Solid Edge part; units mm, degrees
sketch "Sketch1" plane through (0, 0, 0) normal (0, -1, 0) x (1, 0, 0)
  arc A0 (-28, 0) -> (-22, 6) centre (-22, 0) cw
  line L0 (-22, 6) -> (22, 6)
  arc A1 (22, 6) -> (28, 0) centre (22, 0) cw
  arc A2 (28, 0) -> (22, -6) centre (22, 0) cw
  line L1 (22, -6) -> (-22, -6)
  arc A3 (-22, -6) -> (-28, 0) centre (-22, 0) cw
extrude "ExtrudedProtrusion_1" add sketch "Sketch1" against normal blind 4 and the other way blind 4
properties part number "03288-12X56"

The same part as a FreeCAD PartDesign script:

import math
import FreeCAD as App
import Part
import Sketcher

doc = App.newDocument("Part")
body = doc.addObject("PartDesign::Body", "Body")

sketch1 = body.newObject("Sketcher::SketchObject", "Sketch")
sketch1.AttachmentSupport = (doc.getObject("XZ_Plane"), [""])
sketch1.MapMode = "FlatFace"
sketch1.addGeometry([
    Part.ArcOfCircle(Part.Circle(App.Vector(-22, 0, 0), App.Vector(0, 0, 1), 6), math.radians(90), math.radians(270)),
    Part.LineSegment(App.Vector(-22, -6, 0), App.Vector(22, -6, 0)),
    Part.ArcOfCircle(Part.Circle(App.Vector(22, 0, 0), App.Vector(0, 0, 1), 6), math.radians(-90), math.radians(90)),
    Part.LineSegment(App.Vector(22, 6, 0), App.Vector(-22, 6, 0)),
], False)
sketch1.addConstraint([
    Sketcher.Constraint("Tangent", 0, 2, 1, 1),
    Sketcher.Constraint("Tangent", 1, 2, 2, 1),
    Sketcher.Constraint("Tangent", 2, 2, 3, 1),
    Sketcher.Constraint("Tangent", 3, 2, 0, 1),
    Sketcher.Constraint("Horizontal", 1),
    Sketcher.Constraint("Horizontal", 3),
    Sketcher.Constraint("Symmetric", 0, 3, 2, 3, -1, 1),
    Sketcher.Constraint("Radius", 0, 6.0),
    Sketcher.Constraint("DistanceX", 1, 1, 1, 2, 44.0),
])
pad1 = body.newObject("PartDesign::Pad", "Pad")
pad1.Profile = sketch1
pad1.Type = "TwoLengths"
pad1.Length = 4
pad1.Length2 = 4
pad1.Reversed = True

doc.recompute()
